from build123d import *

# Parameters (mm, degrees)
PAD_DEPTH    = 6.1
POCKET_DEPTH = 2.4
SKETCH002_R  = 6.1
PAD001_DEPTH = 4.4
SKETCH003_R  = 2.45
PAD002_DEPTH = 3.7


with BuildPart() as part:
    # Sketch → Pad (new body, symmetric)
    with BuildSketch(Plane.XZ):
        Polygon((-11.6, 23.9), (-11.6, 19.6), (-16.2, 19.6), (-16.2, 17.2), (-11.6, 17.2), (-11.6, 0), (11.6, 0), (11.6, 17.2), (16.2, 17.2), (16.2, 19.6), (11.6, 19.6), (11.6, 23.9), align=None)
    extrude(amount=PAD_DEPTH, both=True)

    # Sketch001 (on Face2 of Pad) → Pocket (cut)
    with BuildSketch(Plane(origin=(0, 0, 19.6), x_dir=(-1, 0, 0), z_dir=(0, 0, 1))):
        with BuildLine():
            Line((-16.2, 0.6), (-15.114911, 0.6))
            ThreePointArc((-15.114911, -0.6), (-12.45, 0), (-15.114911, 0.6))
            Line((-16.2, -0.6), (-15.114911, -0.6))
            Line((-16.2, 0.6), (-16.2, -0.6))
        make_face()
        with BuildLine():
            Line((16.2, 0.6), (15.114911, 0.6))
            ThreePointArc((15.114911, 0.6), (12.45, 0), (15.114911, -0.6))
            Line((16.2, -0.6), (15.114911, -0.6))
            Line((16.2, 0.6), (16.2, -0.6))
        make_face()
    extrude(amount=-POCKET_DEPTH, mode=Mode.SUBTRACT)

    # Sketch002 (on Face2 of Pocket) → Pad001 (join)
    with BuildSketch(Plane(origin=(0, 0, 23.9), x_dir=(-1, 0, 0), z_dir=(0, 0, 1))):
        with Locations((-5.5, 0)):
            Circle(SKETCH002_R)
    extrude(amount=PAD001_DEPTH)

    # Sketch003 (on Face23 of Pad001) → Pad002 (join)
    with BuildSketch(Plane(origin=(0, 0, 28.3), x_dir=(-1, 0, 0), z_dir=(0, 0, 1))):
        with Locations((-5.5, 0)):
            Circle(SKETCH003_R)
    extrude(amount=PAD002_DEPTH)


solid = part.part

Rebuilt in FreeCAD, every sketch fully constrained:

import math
import FreeCAD as App
import Part
import Sketcher
from FreeCAD import Vector


def add_polygon(sketch, points):
    """Adds a closed chain of lines whose ends are joined by coincident constraints."""
    first, n = sketch.GeometryCount, len(points)
    for a, b in zip(points, points[1:] + points[:1]):
        sketch.addGeometry(Part.LineSegment(App.Vector(*a, 0), App.Vector(*b, 0)), False)
    for i in range(n):
        sketch.addConstraint(Sketcher.Constraint("Coincident", first + i, 2, first + (i + 1) % n, 1))

doc = App.newDocument("Part")
params = doc.addObject("Spreadsheet::Sheet", "Params")
for row, (alias, value) in enumerate([
    ("sketch1_width", "4.6 mm"),
    ("sketch1_width2", "23.2 mm"),
    ("sketch1_height", "4.3 mm"),
    ("sketch1_height2", "2.4 mm"),
    ("sketch1_height3", "17.2 mm"),
    ("pad1_length", "12.2 mm"),
    ("sketch2_radius", "1.4 mm"),
    ("sketch2_height", "1.2 mm"),
    ("pocket1_length", "2.4 mm"),
    ("sketch3_diameter", "12.2 mm"),
    ("pad2_length", "4.4 mm"),
    ("sketch4_diameter", "4.9 mm"),
    ("pad3_length", "3.7 mm"),
], start=1):
    params.set(f"A{row}", alias)
    params.set(f"B{row}", "=" + value)
    params.setAlias(f"B{row}", alias)

body = doc.addObject("PartDesign::Body", "Body")

# Sketch on XZ plane
sketch1 = doc.addObject("Sketcher::SketchObject", "Sketch")
body.addObject(sketch1)
sketch1.AttachmentSupport = (doc.XZ_Plane, [""])
sketch1.MapMode = "FlatFace"
add_polygon(sketch1, [(-11.6, 23.9), (-11.6, 19.6), (-16.2, 19.6), (-16.2, 17.2), (-11.6, 17.2), (-11.6, 0), (11.6, 0), (11.6, 17.2), (16.2, 17.2), (16.2, 19.6), (11.6, 19.6), (11.6, 23.9)])  # lines 0-11
sketch1.addConstraint([
    Sketcher.Constraint("Vertical", 0),
    Sketcher.Constraint("Horizontal", 1),
    Sketcher.Constraint("Vertical", 2),
    Sketcher.Constraint("Horizontal", 3),
    Sketcher.Constraint("Vertical", 4),
    Sketcher.Constraint("Horizontal", 5),
    Sketcher.Constraint("Vertical", 6),
    Sketcher.Constraint("Horizontal", 7),
    Sketcher.Constraint("Vertical", 8),
    Sketcher.Constraint("Horizontal", 9),
    Sketcher.Constraint("Vertical", 10),
    Sketcher.Constraint("Horizontal", 11),
    Sketcher.Constraint("Symmetric", 4, 2, 5, 2, -1, 1),
    Sketcher.Constraint("Symmetric", 2, 2, 7, 2, -2),
    Sketcher.Constraint("Symmetric", 0, 2, 9, 2, -2),
    Sketcher.Constraint("Vertical", 0, 2, 3, 2),
    Sketcher.Constraint("DistanceX", 1, 2, 1, 1, 4.6),
    Sketcher.Constraint("DistanceX", 5, 1, 5, 2, 23.2),
    Sketcher.Constraint("DistanceY", 0, 2, 0, 1, 4.3),
    Sketcher.Constraint("DistanceY", 2, 2, 2, 1, 2.4),
    Sketcher.Constraint("DistanceY", 4, 2, 4, 1, 17.2),
])
sketch1.setExpression("Constraints[28]", "Params.sketch1_width")
sketch1.setExpression("Constraints[29]", "Params.sketch1_width2")
sketch1.setExpression("Constraints[30]", "Params.sketch1_height")
sketch1.setExpression("Constraints[31]", "Params.sketch1_height2")
sketch1.setExpression("Constraints[32]", "Params.sketch1_height3")
pad1 = doc.addObject("PartDesign::Pad", "Pad")
body.addObject(pad1)
pad1.Profile = sketch1
pad1.setExpression("Length", "Params.pad1_length")
pad1.Midplane = True

# Sketch on XY plane
sketch2 = doc.addObject("Sketcher::SketchObject", "Sketch001")
body.addObject(sketch2)
sketch2.AttachmentSupport = (doc.XY_Plane, [""])
sketch2.MapMode = "FlatFace"
sketch2.AttachmentOffset = App.Placement(Vector(0, 0, 19.6), App.Rotation())
sketch2.addGeometry([
    Part.LineSegment(Vector(15.1, -0.6, 0), Vector(16.2, -0.6, 0)),  # 0
    Part.LineSegment(Vector(16.2, -0.6, 0), Vector(16.2, 0.6, 0)),  # 1
    Part.LineSegment(Vector(16.2, 0.6, 0), Vector(15.1, 0.6, 0)),  # 2
    Part.ArcOfCircle(Part.Circle(Vector(13.8, 0, 0), Vector(0, 0, 1), 1.4), math.radians(25), math.radians(335)),  # 3
    Part.LineSegment(Vector(-16.2, -0.6, 0), Vector(-15.1, -0.6, 0)),  # 4
    Part.ArcOfCircle(Part.Circle(Vector(-13.8, 0, 0), Vector(0, 0, 1), 1.4), math.radians(-155), math.radians(155)),  # 5
    Part.LineSegment(Vector(-15.1, 0.6, 0), Vector(-16.2, 0.6, 0)),  # 6
    Part.LineSegment(Vector(-16.2, 0.6, 0), Vector(-16.2, -0.6, 0)),  # 7
], False)
sketch2.addConstraint([
    Sketcher.Constraint("Coincident", 0, 2, 1, 1),
    Sketcher.Constraint("Coincident", 1, 2, 2, 1),
    Sketcher.Constraint("Coincident", 2, 2, 3, 1),
    Sketcher.Constraint("Coincident", 3, 2, 0, 1),
    Sketcher.Constraint("Coincident", 4, 2, 5, 1),
    Sketcher.Constraint("Coincident", 5, 2, 6, 1),
    Sketcher.Constraint("Coincident", 6, 2, 7, 1),
    Sketcher.Constraint("Coincident", 7, 2, 4, 1),
    Sketcher.Constraint("Horizontal", 0),
    Sketcher.Constraint("Vertical", 1),
    Sketcher.Constraint("Horizontal", 2),
    Sketcher.Constraint("Horizontal", 4),
    Sketcher.Constraint("Horizontal", 6),
    Sketcher.Constraint("Vertical", 7),
    Sketcher.Constraint("Equal", 3, 5),
    Sketcher.Constraint("Symmetric", 3, 3, 5, 3, -1, 1),
    Sketcher.Constraint("Symmetric", 0, 2, 6, 2, -1, 1),
    Sketcher.Constraint("Symmetric", 3, 2, 4, 2, -2),
    Sketcher.Constraint("Horizontal", 2, 2, 5, 2),
    Sketcher.Constraint("Radius", 3, 1.4),
    Sketcher.Constraint("DistanceY", 1, 1, 1, 2, 1.2),
    Sketcher.Constraint("DistanceX", -1, 1, 0, 2, 16.2),
    Sketcher.Constraint("DistanceX", 5, 3, 3, 3, 27.7),
])
sketch2.setExpression("Constraints[19]", "Params.sketch2_radius")
sketch2.setExpression("Constraints[20]", "Params.sketch2_height")
pocket1 = doc.addObject("PartDesign::Pocket", "Pocket")
body.addObject(pocket1)
pocket1.Profile = sketch2
pocket1.setExpression("Length", "Params.pocket1_length")

# Sketch on XY plane
sketch3 = doc.addObject("Sketcher::SketchObject", "Sketch002")
body.addObject(sketch3)
sketch3.AttachmentSupport = (doc.XY_Plane, [""])
sketch3.MapMode = "FlatFace"
sketch3.AttachmentOffset = App.Placement(Vector(0, 0, 23.9), App.Rotation())
sketch3.addGeometry(Part.Circle(Vector(6, 0, 0), Vector(0, 0, 1), 6), False)
sketch3.addConstraint([
    Sketcher.Constraint("PointOnObject", 0, 3, -1),
    Sketcher.Constraint("Diameter", 0, 12.2),
    Sketcher.Constraint("DistanceX", -1, 1, 0, 3, 5.5),
])
sketch3.setExpression("Constraints[1]", "Params.sketch3_diameter")
pad2 = doc.addObject("PartDesign::Pad", "Pad001")
body.addObject(pad2)
pad2.Profile = sketch3
pad2.setExpression("Length", "Params.pad2_length")

# Sketch on XY plane
sketch4 = doc.addObject("Sketcher::SketchObject", "Sketch003")
body.addObject(sketch4)
sketch4.AttachmentSupport = (doc.XY_Plane, [""])
sketch4.MapMode = "FlatFace"
sketch4.AttachmentOffset = App.Placement(Vector(0, 0, 28.3), App.Rotation())
sketch4.addGeometry(Part.Circle(Vector(5.5, 0, 0), Vector(0, 0, 1), 2.5), False)
sketch4.addConstraint([
    Sketcher.Constraint("PointOnObject", 0, 3, -1),
    Sketcher.Constraint("Diameter", 0, 4.9),
    Sketcher.Constraint("DistanceX", -1, 1, 0, 3, 5.5),
])
sketch4.setExpression("Constraints[1]", "Params.sketch4_diameter")
pad3 = doc.addObject("PartDesign::Pad", "Pad002")
body.addObject(pad3)
pad3.Profile = sketch4
pad3.setExpression("Length", "Params.pad3_length")

doc.recompute()
